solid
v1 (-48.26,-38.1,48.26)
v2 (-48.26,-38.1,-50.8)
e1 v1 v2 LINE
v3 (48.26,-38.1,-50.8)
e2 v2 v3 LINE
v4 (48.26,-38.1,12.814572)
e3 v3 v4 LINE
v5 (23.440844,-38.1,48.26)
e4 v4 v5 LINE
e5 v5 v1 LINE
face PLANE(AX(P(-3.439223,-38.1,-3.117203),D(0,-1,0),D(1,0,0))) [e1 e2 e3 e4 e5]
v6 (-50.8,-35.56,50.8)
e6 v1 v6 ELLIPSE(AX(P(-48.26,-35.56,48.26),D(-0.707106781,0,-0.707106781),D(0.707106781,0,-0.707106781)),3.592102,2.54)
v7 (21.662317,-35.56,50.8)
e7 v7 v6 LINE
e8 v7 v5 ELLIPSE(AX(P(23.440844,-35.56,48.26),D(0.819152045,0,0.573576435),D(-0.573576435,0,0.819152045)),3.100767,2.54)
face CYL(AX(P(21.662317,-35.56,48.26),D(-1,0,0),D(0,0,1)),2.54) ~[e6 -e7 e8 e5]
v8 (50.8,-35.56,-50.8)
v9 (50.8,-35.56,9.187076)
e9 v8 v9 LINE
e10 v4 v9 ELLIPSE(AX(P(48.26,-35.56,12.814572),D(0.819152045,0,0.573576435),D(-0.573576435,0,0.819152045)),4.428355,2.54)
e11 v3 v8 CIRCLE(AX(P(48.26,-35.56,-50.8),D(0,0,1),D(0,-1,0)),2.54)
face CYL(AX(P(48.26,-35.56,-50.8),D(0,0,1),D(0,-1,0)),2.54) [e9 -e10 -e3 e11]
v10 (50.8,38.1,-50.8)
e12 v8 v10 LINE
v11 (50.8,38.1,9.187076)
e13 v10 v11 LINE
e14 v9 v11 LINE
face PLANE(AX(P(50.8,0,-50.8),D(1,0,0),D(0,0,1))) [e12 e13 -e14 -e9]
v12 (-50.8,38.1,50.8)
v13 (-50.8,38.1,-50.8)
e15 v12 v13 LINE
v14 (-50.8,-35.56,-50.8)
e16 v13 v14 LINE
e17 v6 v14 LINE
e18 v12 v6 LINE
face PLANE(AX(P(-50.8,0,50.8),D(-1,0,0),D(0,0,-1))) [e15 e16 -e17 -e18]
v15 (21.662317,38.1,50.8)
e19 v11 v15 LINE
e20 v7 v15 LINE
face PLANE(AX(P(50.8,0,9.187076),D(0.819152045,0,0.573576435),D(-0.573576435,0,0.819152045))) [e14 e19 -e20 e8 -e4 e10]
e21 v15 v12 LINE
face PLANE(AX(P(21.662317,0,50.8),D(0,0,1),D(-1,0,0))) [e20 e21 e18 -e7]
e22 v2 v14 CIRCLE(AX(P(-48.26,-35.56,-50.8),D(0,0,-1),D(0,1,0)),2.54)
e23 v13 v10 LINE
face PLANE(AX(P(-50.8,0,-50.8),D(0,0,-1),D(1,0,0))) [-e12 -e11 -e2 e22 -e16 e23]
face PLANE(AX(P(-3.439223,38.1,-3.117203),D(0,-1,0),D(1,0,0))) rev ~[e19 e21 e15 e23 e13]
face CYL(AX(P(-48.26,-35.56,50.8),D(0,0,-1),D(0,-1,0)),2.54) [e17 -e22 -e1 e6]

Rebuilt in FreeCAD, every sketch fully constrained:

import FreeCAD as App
import Part
import Sketcher
from FreeCAD import Vector
Q = App.Units.Quantity


def edges_at(feature, points):
    """Names of the edges that pass closest to the given points."""
    edges = feature.Shape.Edges
    near = lambda p: min(range(len(edges)), key=lambda i: edges[i].distToShape(Part.Vertex(*p))[0])
    return sorted({f"Edge{near(p) + 1}" for p in points})

doc = App.newDocument("Part")
body = doc.addObject("PartDesign::Body", "Body")

# Sketch on XZ plane
sketch1 = body.newObject("Sketcher::SketchObject", "Sketch")
sketch1.AttachmentSupport = (doc.getObject("XZ_Plane"), [""])
sketch1.MapMode = "FlatFace"
sketch1.addGeometry([
    Part.LineSegment(Vector(22, 51, 0), Vector(-51, 51, 0)),  # 0
    Part.LineSegment(Vector(-51, 51, 0), Vector(-51, -51, 0)),  # 1
    Part.LineSegment(Vector(-51, -51, 0), Vector(51, -51, 0)),  # 2
    Part.LineSegment(Vector(51, -51, 0), Vector(51, 9, 0)),  # 3
    Part.LineSegment(Vector(51, 9, 0), Vector(22, 51, 0)),  # 4
], False)
sketch1.addConstraint([
    Sketcher.Constraint("Coincident", 0, 2, 1, 1),
    Sketcher.Constraint("Coincident", 1, 2, 2, 1),
    Sketcher.Constraint("Coincident", 2, 2, 3, 1),
    Sketcher.Constraint("Coincident", 3, 2, 4, 1),
    Sketcher.Constraint("Coincident", 4, 2, 0, 1),
    Sketcher.Constraint("Horizontal", 0),
    Sketcher.Constraint("Vertical", 1),
    Sketcher.Constraint("Horizontal", 2),
    Sketcher.Constraint("Vertical", 3),
    Sketcher.Constraint("Symmetric", 0, 2, 2, 2, -1, 1),
    Sketcher.Constraint("Equal", 2, 1),
    Sketcher.Constraint("DistanceX", 2, 1, 2, 2, Q("4 in")),
    Sketcher.Constraint("Distance", 4, Q("2 in")),
    Sketcher.Constraint("Angle", 4, Q("125 deg")),
])
pad1 = body.newObject("PartDesign::Pad", "Pad")
pad1.Profile = sketch1
pad1.Length = Q("3 in")
pad1.Midplane = True
doc.recompute()

fillet = body.newObject("PartDesign::Fillet", "Fillet")
fillet.Base = (pad1, edges_at(pad1, [(-50.8, -38.1, 0), (-14.569, -38.1, 50.8)]))
fillet.Radius = Q("0.1 in")
doc.recompute()

fillet2 = body.newObject("PartDesign::Fillet", "Fillet001")
fillet2.Base = (fillet, edges_at(fillet, [(50.8, -38.1, -20.806)]))
fillet2.Radius = Q("0.1 in")

doc.recompute()
